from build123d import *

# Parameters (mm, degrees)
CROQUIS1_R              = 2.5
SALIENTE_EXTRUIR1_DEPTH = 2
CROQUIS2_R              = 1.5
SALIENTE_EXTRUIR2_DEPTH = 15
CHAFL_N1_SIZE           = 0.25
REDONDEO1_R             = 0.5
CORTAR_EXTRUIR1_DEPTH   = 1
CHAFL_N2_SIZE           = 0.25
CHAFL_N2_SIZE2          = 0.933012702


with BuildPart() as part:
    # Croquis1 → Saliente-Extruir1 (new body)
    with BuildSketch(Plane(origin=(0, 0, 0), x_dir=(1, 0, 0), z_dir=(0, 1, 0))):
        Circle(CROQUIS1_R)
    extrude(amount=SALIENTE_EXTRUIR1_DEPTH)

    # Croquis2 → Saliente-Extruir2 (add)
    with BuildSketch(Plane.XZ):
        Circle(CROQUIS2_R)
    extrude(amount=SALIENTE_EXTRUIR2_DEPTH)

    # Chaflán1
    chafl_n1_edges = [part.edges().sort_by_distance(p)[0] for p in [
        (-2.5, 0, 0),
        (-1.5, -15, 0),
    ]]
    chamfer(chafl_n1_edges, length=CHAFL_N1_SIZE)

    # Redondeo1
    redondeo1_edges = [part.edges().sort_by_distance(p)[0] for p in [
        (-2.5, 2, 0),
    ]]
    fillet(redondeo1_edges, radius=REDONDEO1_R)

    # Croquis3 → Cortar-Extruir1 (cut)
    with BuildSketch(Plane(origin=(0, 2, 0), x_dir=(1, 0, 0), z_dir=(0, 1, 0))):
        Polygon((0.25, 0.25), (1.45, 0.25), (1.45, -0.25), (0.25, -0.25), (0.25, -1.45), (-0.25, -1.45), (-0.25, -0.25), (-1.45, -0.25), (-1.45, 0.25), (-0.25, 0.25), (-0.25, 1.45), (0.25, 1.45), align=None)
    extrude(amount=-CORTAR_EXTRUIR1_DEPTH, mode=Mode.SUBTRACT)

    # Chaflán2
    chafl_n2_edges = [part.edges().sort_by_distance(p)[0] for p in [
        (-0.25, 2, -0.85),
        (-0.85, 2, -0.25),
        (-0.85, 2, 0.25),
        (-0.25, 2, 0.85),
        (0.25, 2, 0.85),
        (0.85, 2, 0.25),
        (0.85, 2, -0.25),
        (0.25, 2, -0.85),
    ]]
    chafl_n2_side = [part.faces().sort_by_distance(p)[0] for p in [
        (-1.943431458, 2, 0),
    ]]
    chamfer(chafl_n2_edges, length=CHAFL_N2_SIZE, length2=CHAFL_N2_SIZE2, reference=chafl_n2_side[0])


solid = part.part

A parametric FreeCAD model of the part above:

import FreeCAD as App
import Part
import Sketcher
from FreeCAD import Vector
Q = App.Units.Quantity


def edges_at(feature, points):
    """Names of the edges that pass closest to the given points."""
    edges = feature.Shape.Edges
    near = lambda p: min(range(len(edges)), key=lambda i: edges[i].distToShape(Part.Vertex(*p))[0])
    return sorted({f"Edge{near(p) + 1}" for p in points})


def add_polygon(sketch, points):
    """Adds a closed chain of lines whose ends are joined by coincident constraints."""
    first, n = sketch.GeometryCount, len(points)
    for a, b in zip(points, points[1:] + points[:1]):
        sketch.addGeometry(Part.LineSegment(App.Vector(*a, 0), App.Vector(*b, 0)), False)
    for i in range(n):
        sketch.addConstraint(Sketcher.Constraint("Coincident", first + i, 2, first + (i + 1) % n, 1))

doc = App.newDocument("Part")
body = doc.addObject("PartDesign::Body", "Body")

# Sketch on XZ plane
sketch1 = body.newObject("Sketcher::SketchObject", "Sketch")
sketch1.AttachmentSupport = (doc.getObject("XZ_Plane"), [""])
sketch1.MapMode = "FlatFace"
sketch1.addGeometry(Part.Circle(Vector(0, 0, 0), Vector(0, 0, 1), 2.5), False)
sketch1.addConstraint(Sketcher.Constraint("Coincident", 0, 3, -1, 1))
sketch1.addConstraint(Sketcher.Constraint("Diameter", 0, Q("5 mm")))
pad1 = body.newObject("PartDesign::Pad", "Pad")
pad1.Profile = sketch1
pad1.Length = 2
pad1.Reversed = True

# Sketch on XZ plane
sketch2 = body.newObject("Sketcher::SketchObject", "Sketch001")
sketch2.AttachmentSupport = (doc.getObject("XZ_Plane"), [""])
sketch2.MapMode = "FlatFace"
sketch2.addGeometry(Part.Circle(Vector(0, 0, 0), Vector(0, 0, 1), 1.5), False)
sketch2.addConstraint(Sketcher.Constraint("Coincident", 0, 3, -1, 1))
sketch2.addConstraint(Sketcher.Constraint("Diameter", 0, Q("3 mm")))
pad2 = body.newObject("PartDesign::Pad", "Pad001")
pad2.Profile = sketch2
pad2.Length = 15
doc.recompute()

chamfer = body.newObject("PartDesign::Chamfer", "Chamfer")
chamfer.Base = (pad2, edges_at(pad2, [(-2.5, 0, 0), (-1.5, -15, 0)]))
chamfer.Size = 0.25
doc.recompute()

fillet = body.newObject("PartDesign::Fillet", "Fillet")
fillet.Base = (chamfer, edges_at(chamfer, [(-2.5, 2, 0)]))
fillet.Radius = 0.5

# Sketch on XZ plane
sketch3 = body.newObject("Sketcher::SketchObject", "Sketch002")
sketch3.AttachmentSupport = (doc.getObject("XZ_Plane"), [""])
sketch3.MapMode = "FlatFace"
sketch3.AttachmentOffset = App.Placement(Vector(0, 0, -2), App.Rotation())
add_polygon(sketch3, [(1.4, -0.2), (0.2, -0.2), (0.2, -1.4), (-0.2, -1.4), (-0.2, -0.2), (-1.4, -0.2), (-1.4, 0.2), (-0.2, 0.2), (-0.2, 1.4), (0.2, 1.4), (0.2, 0.2), (1.4, 0.2)])  # lines 0-11
sketch3.addConstraint(Sketcher.Constraint("Horizontal", 0))
sketch3.addConstraint(Sketcher.Constraint("Vertical", 1))
sketch3.addConstraint(Sketcher.Constraint("Horizontal", 2))
sketch3.addConstraint(Sketcher.Constraint("Vertical", 3))
sketch3.addConstraint(Sketcher.Constraint("Horizontal", 4))
sketch3.addConstraint(Sketcher.Constraint("Vertical", 5))
sketch3.addConstraint(Sketcher.Constraint("Horizontal", 6))
sketch3.addConstraint(Sketcher.Constraint("Vertical", 7))
sketch3.addConstraint(Sketcher.Constraint("Horizontal", 8))
sketch3.addConstraint(Sketcher.Constraint("Vertical", 9))
sketch3.addConstraint(Sketcher.Constraint("Horizontal", 10))
sketch3.addConstraint(Sketcher.Constraint("Vertical", 11))
sketch3.addConstraint(Sketcher.Constraint("Symmetric", 0, 2, 6, 2, -1, 1))
sketch3.addConstraint(Sketcher.Constraint("Symmetric", 2, 2, 8, 2, -1, 1))
sketch3.addConstraint(Sketcher.Constraint("Symmetric", 4, 2, 10, 2, -1, 1))
sketch3.addConstraint(Sketcher.Constraint("Symmetric", 0, 2, 3, 2, -2))
sketch3.addConstraint(Sketcher.Constraint("Equal", 10, 1))
sketch3.addConstraint(Sketcher.Constraint("Equal", 8, 5))
sketch3.addConstraint(Sketcher.Constraint("DistanceX", 0, 2, 0, 1, Q("1.2 mm")))
sketch3.addConstraint(Sketcher.Constraint("DistanceX", 2, 2, 2, 1, Q("0.5 mm")))
pocket1 = body.newObject("PartDesign::Pocket", "Pocket")
pocket1.Profile = sketch3
pocket1.Length = 1
pocket1.Reversed = True
doc.recompute()

chamfer2 = body.newObject("PartDesign::Chamfer", "Chamfer001")
chamfer2.Base = (pocket1, edges_at(pocket1, [
    (-0.25, 2, -0.85),
    (-0.85, 2, -0.25),
    (-0.85, 2, 0.25),
    (-0.25, 2, 0.85),
    (0.25, 2, 0.85),
    (0.85, 2, 0.25),
    (0.85, 2, -0.25),
    (0.25, 2, -0.85),
]))
chamfer2.ChamferType = "Two distances"
chamfer2.Size = 0.25
chamfer2.Size2 = 0.933013

doc.recompute()
